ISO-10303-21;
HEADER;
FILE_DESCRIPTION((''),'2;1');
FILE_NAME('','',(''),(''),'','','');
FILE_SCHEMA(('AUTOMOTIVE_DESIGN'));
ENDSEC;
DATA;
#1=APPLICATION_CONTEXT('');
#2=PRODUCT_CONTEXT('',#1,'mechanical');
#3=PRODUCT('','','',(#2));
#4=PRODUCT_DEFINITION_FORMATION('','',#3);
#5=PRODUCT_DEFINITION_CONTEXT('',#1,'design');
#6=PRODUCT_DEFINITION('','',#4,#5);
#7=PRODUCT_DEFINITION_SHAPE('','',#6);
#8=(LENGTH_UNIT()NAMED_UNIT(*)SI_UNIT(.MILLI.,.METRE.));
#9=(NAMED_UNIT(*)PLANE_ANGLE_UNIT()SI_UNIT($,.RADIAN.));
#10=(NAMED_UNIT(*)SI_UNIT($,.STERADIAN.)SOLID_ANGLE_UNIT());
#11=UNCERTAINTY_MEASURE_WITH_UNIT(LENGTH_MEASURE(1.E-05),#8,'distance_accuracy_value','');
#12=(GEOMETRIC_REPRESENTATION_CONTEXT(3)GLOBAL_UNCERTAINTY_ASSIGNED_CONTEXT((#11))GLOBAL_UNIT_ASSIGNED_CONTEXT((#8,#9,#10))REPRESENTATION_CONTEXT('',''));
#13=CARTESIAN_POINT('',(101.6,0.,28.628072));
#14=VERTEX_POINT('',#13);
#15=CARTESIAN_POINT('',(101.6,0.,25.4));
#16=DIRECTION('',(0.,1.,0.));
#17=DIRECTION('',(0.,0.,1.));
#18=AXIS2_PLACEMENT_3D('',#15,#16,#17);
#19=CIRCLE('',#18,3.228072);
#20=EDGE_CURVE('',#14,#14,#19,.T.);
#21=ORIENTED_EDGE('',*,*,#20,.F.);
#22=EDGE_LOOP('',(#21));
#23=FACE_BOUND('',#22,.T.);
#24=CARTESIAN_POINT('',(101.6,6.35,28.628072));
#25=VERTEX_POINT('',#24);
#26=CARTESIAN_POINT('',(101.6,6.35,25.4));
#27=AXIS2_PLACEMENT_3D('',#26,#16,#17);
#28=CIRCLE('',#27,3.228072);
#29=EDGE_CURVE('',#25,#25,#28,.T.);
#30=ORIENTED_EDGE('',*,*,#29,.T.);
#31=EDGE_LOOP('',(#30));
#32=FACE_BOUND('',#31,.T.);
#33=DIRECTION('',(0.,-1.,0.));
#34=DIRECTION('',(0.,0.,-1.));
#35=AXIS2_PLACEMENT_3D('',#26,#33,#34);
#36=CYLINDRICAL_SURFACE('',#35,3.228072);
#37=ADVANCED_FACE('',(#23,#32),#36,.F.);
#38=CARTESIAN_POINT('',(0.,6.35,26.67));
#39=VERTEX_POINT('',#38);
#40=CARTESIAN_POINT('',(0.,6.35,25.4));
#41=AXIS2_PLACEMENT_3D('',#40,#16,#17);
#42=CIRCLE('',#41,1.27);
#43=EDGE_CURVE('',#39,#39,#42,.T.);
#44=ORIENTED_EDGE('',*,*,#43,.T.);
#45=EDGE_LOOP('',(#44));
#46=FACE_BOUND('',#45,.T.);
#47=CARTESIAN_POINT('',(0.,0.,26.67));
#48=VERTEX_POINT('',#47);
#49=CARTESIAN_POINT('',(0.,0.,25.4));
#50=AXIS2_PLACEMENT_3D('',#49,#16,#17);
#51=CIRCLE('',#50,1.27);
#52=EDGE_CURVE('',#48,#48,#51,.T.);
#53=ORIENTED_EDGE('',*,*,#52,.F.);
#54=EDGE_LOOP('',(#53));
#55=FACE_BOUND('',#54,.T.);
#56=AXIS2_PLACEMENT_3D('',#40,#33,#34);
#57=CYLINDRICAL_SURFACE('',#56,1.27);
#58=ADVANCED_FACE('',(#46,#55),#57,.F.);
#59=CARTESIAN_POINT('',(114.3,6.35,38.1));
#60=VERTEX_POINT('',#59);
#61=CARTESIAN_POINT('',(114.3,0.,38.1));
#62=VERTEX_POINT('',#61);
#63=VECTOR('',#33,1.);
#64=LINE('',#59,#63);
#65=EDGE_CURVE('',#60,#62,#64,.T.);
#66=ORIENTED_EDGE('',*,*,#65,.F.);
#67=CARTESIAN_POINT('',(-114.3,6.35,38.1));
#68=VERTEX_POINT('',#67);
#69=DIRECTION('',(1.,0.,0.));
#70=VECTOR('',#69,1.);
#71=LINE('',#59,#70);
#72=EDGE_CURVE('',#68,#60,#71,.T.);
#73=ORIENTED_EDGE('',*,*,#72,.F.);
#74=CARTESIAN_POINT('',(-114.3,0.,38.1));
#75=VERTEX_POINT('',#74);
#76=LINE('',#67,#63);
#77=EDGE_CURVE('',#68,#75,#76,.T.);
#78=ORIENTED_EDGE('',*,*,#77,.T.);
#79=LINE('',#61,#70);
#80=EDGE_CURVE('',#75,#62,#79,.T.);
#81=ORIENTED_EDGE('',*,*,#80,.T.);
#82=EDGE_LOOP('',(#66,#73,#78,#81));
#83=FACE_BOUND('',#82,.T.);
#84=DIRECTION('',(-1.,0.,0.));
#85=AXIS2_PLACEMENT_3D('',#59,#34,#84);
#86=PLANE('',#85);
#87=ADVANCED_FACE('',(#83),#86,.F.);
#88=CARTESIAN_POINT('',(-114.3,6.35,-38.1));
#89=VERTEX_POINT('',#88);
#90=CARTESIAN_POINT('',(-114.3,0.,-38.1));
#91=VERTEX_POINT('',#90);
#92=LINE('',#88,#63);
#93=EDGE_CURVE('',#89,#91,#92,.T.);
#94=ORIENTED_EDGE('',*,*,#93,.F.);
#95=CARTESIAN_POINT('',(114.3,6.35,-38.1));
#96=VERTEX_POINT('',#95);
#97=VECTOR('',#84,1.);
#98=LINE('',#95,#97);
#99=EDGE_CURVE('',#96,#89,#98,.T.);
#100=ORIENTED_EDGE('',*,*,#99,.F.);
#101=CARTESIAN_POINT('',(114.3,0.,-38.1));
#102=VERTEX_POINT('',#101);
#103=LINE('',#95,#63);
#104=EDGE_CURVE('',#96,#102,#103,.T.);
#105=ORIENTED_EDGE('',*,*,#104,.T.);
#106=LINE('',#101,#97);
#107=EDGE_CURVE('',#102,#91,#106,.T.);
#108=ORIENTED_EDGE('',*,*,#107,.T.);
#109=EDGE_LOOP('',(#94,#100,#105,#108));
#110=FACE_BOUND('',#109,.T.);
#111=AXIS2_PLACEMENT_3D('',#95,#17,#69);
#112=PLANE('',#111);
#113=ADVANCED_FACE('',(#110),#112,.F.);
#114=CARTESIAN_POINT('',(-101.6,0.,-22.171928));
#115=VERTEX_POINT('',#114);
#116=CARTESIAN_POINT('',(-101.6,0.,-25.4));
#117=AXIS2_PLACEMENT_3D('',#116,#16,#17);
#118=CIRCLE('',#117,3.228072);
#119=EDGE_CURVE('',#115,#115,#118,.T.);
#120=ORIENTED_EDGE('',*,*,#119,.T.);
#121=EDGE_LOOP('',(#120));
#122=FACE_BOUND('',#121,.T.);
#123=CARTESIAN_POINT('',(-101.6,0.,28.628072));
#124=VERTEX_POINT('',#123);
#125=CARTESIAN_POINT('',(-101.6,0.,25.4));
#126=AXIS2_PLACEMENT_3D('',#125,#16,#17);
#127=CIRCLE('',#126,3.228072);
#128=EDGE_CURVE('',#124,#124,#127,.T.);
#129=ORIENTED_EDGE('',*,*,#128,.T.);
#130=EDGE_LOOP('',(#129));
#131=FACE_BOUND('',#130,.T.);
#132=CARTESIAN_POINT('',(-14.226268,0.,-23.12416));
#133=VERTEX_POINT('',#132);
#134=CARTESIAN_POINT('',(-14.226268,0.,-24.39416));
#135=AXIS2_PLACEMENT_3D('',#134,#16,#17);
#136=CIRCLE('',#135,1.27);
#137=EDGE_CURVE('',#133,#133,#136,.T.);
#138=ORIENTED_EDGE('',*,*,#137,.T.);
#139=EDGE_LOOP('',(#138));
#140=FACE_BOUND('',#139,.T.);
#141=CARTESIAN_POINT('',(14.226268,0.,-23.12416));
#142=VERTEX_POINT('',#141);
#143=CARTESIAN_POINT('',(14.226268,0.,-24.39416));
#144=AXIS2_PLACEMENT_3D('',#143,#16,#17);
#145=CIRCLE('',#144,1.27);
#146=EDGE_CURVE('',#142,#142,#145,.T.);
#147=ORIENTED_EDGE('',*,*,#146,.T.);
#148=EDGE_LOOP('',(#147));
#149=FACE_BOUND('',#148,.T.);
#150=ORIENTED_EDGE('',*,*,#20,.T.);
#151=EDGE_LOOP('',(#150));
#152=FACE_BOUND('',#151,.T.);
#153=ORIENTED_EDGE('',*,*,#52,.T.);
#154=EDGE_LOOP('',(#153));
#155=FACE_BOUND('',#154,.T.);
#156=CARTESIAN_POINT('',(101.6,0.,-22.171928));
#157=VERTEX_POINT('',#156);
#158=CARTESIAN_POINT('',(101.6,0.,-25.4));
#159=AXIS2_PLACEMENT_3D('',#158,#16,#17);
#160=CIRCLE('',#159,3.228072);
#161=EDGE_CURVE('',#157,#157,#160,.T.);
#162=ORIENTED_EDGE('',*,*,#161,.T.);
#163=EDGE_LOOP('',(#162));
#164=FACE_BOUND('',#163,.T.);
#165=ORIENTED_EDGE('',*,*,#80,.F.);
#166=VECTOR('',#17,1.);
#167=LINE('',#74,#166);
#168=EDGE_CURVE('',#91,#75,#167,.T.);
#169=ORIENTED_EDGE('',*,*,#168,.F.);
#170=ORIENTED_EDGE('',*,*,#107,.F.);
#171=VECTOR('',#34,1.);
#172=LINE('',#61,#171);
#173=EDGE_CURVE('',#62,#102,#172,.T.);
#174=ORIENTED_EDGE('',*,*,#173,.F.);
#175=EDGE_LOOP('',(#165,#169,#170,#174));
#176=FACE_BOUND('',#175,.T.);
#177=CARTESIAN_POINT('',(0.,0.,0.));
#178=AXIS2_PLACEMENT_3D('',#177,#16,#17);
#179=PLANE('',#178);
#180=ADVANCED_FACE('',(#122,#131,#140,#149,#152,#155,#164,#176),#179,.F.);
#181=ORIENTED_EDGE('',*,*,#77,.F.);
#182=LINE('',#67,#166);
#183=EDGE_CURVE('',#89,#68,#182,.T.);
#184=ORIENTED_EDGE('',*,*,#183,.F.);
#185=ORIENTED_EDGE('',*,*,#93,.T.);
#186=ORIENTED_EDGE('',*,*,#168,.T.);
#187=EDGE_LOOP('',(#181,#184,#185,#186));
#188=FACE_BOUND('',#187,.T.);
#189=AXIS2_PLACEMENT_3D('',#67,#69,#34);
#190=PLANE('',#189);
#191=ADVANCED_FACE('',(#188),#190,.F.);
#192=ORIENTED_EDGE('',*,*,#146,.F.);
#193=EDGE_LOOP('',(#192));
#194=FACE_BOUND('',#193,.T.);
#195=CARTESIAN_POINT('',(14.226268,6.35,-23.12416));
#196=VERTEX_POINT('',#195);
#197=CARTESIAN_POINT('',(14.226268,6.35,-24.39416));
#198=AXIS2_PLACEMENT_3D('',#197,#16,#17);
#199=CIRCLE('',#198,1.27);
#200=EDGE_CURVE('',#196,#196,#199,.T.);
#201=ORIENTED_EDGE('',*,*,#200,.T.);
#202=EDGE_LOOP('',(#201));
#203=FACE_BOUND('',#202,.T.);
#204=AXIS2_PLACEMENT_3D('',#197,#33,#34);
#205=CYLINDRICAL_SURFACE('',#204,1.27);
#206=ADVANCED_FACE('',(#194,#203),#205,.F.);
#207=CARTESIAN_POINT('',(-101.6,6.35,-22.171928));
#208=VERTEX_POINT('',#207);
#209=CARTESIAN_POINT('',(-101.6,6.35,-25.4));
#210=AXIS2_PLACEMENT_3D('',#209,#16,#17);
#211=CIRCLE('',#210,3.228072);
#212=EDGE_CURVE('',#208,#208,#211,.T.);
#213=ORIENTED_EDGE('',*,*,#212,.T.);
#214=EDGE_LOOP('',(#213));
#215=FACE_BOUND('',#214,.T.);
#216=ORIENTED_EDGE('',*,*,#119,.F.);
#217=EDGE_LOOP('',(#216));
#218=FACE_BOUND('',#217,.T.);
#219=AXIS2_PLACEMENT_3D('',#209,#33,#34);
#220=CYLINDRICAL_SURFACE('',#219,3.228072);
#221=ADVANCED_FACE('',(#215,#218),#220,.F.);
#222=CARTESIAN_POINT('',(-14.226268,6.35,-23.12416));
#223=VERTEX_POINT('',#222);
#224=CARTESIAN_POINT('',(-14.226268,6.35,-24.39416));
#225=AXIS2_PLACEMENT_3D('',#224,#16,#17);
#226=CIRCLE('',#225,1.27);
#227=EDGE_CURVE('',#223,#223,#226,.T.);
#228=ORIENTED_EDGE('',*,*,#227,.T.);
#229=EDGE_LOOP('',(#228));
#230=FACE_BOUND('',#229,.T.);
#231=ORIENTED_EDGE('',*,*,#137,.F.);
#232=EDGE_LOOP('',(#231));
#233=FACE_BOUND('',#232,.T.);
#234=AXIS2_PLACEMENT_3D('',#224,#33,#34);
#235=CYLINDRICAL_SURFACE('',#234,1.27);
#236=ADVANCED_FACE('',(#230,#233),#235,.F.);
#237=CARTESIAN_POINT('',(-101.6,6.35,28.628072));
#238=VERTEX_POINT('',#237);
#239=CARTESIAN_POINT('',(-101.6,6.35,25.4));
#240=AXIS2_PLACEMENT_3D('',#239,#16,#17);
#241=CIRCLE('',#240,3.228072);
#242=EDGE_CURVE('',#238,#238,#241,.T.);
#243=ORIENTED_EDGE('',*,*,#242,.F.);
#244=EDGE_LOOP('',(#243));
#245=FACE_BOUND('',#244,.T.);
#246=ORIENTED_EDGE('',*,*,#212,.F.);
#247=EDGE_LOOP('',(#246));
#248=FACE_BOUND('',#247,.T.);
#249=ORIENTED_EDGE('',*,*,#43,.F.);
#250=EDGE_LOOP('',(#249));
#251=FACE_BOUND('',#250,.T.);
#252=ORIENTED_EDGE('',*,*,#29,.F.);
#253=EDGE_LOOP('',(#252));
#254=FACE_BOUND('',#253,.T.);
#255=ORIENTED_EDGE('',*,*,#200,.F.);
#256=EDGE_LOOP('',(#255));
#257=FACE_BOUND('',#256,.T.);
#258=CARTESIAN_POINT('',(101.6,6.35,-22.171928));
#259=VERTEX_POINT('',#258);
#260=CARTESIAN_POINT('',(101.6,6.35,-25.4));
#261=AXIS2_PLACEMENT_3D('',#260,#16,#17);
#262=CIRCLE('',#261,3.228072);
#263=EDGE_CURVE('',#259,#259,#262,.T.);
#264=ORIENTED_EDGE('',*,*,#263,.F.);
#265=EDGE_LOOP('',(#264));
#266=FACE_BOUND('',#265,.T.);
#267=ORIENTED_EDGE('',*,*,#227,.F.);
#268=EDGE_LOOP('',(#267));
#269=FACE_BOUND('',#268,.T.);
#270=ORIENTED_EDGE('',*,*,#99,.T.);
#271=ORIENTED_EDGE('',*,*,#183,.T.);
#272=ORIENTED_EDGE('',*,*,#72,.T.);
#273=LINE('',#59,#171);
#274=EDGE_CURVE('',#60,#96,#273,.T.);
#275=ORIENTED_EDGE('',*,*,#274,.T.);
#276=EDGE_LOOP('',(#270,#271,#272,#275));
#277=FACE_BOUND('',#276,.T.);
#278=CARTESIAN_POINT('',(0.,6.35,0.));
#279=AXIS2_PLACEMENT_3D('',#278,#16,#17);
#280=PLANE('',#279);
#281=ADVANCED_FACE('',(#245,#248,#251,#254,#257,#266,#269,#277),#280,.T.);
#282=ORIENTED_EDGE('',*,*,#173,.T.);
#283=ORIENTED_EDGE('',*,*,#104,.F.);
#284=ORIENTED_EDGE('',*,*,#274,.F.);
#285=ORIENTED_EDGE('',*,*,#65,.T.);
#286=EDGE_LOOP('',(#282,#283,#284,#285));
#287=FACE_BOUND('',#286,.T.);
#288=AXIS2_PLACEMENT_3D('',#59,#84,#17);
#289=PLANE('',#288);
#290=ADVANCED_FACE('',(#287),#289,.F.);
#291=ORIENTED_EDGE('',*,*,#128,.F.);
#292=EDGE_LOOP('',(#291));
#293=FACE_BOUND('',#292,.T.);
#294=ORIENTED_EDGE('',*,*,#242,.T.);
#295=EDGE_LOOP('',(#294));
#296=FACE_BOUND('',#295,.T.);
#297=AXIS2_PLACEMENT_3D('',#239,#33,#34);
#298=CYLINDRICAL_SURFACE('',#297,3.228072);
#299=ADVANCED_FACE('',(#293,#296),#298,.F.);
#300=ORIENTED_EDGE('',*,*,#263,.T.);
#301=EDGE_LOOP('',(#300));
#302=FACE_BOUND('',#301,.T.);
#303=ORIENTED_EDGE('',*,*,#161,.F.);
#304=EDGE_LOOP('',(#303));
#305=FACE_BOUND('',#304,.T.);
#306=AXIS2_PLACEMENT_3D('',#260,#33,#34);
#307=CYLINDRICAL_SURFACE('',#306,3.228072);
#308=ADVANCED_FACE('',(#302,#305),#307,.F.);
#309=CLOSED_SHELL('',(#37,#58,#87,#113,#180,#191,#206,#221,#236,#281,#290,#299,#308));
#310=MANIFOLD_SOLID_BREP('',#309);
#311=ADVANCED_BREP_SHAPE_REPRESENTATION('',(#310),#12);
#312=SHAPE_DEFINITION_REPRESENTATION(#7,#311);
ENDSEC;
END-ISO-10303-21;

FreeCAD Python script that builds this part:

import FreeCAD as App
import Part
import Sketcher

V = App.Vector
Q = App.Units.Quantity

doc = App.newDocument("Part")
body = doc.addObject("PartDesign::Body", "Body")

sketch1 = body.newObject("Sketcher::SketchObject", "Sketch")
sketch1.AttachmentSupport = (doc.getObject("XZ_Plane"), [""])
sketch1.MapMode = "FlatFace"
sketch1.addGeometry([
    Part.LineSegment(V(-114.3, -38.1, 0), V(-114.3, 38.1, 0)),
    Part.LineSegment(V(-114.3, 38.1, 0), V(114.3, 38.1, 0)),
    Part.LineSegment(V(114.3, 38.1, 0), V(114.3, -38.1, 0)),
    Part.LineSegment(V(114.3, -38.1, 0), V(-114.3, -38.1, 0)),
    Part.Circle(V(-101.6, 25.4, 0), V(0, 0, 1), 3.2),
    Part.Circle(V(0, 25.4, 0), V(0, 0, 1), 1.3),
    Part.Circle(V(101.6, 25.4, 0), V(0, 0, 1), 3.2),
    Part.Circle(V(-101.6, -25.4, 0), V(0, 0, 1), 3.2),
    Part.Circle(V(-14.2, -24.4, 0), V(0, 0, 1), 1.3),
    Part.Circle(V(14.2, -24.4, 0), V(0, 0, 1), 1.3),
    Part.Circle(V(101.6, -25.4, 0), V(0, 0, 1), 3.2),
], False)
sketch1.addConstraint([
    Sketcher.Constraint("Coincident", 0, 2, 1, 1),
    Sketcher.Constraint("Coincident", 1, 2, 2, 1),
    Sketcher.Constraint("Coincident", 2, 2, 3, 1),
    Sketcher.Constraint("Coincident", 3, 2, 0, 1),
    Sketcher.Constraint("Vertical", 0),
    Sketcher.Constraint("Horizontal", 1),
    Sketcher.Constraint("Vertical", 2),
    Sketcher.Constraint("Horizontal", 3),
    Sketcher.Constraint("Equal", 4, 6),
    Sketcher.Constraint("Equal", 6, 7),
    Sketcher.Constraint("Equal", 5, 8),
    Sketcher.Constraint("Equal", 8, 9),
    Sketcher.Constraint("Equal", 7, 10),
    Sketcher.Constraint("Symmetric", 6, 3, 7, 3, -1, 1),
    Sketcher.Constraint("Symmetric", 4, 3, 10, 3, -1, 1),
    Sketcher.Constraint("Symmetric", 0, 2, 2, 2, -1, 1),
    Sketcher.Constraint("Symmetric", 4, 3, 6, 3, -2),
    Sketcher.Constraint("Symmetric", 8, 3, 9, 3, -2),
    Sketcher.Constraint("PointOnObject", 5, 3, -2),
    Sketcher.Constraint("Horizontal", 4, 3, 5, 3),
    Sketcher.Constraint("Diameter", 5, Q("0.1 in")),
    Sketcher.Constraint("DistanceX", 1, 1, 1, 2, Q("9 in")),
    Sketcher.Constraint("DistanceY", 0, 1, 0, 2, Q("3 in")),
    Sketcher.Constraint("DistanceX", 4, 3, -1, 1, Q("4 in")),
    Sketcher.Constraint("DistanceY", -1, 1, 4, 3, Q("1 in")),
    Sketcher.Constraint("Diameter", 4, Q("6.456144 mm")),
    Sketcher.Constraint("DistanceY", 8, 3, -1, 1, Q("0.9604 in")),
    Sketcher.Constraint("DistanceX", 8, 3, -1, 1, Q("14.226268 mm")),
])
pad1 = body.newObject("PartDesign::Pad", "Pad")
pad1.Profile = sketch1
pad1.Length = Q("0.25 in")
pad1.Reversed = True

doc.recompute()
